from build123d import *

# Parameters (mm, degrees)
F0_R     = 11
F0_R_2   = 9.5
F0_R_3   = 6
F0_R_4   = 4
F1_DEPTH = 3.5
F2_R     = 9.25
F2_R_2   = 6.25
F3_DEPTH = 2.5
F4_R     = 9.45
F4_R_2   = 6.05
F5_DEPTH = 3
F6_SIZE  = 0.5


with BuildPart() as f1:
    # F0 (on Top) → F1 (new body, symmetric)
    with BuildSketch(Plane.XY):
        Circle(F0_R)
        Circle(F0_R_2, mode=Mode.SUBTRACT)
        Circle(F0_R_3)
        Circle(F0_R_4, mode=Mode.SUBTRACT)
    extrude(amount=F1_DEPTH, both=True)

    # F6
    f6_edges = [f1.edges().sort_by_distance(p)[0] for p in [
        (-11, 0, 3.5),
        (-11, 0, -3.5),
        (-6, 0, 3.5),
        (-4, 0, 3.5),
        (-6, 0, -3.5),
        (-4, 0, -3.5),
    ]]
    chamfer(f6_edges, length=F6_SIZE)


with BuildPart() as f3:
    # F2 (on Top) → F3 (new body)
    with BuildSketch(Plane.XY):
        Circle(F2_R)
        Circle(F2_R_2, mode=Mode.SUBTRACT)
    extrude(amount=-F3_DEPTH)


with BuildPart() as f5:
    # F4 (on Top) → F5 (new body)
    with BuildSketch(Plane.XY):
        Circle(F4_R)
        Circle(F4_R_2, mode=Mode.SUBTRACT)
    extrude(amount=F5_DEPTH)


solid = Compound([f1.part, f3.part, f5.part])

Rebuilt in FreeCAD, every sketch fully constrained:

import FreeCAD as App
import Part
import Sketcher

V = App.Vector
Q = App.Units.Quantity


def edges_at(feature, points):
    """Names of the edges that pass closest to the given points."""
    edges = feature.Shape.Edges
    near = lambda p: min(range(len(edges)), key=lambda i: edges[i].distToShape(Part.Vertex(*p))[0])
    return sorted({f"Edge{near(p) + 1}" for p in points})

doc = App.newDocument("Part")
body = doc.addObject("PartDesign::Body", "Body")
body.AllowCompound = True

sketch1 = body.newObject("Sketcher::SketchObject", "Sketch")
sketch1.AttachmentSupport = (doc.getObject("XY_Plane"), [""])
sketch1.MapMode = "FlatFace"
sketch1.addGeometry(Part.Circle(V(0, 0, 0), V(0, 0, 1), 11), False)
sketch1.addGeometry(Part.Circle(V(0, 0, 0), V(0, 0, 1), 9.5), False)
sketch1.addGeometry(Part.Circle(V(0, 0, 0), V(0, 0, 1), 6), False)
sketch1.addGeometry(Part.Circle(V(0, 0, 0), V(0, 0, 1), 4), False)
sketch1.addConstraint(Sketcher.Constraint("Coincident", 0, 3, -1, 1))
sketch1.addConstraint(Sketcher.Constraint("Coincident", 1, 3, -1, 1))
sketch1.addConstraint(Sketcher.Constraint("Coincident", 2, 3, -1, 1))
sketch1.addConstraint(Sketcher.Constraint("Coincident", 3, 3, -1, 1))
sketch1.addConstraint(Sketcher.Constraint("Diameter", 0, Q("22 mm")))
sketch1.addConstraint(Sketcher.Constraint("Diameter", 1, Q("19 mm")))
sketch1.addConstraint(Sketcher.Constraint("Diameter", 2, Q("12 mm")))
sketch1.addConstraint(Sketcher.Constraint("Diameter", 3, Q("8 mm")))
pad1 = body.newObject("PartDesign::Pad", "Pad")
pad1.Profile = sketch1
pad1.Length = 7
pad1.Midplane = True
doc.recompute()

chamfer = body.newObject("PartDesign::Chamfer", "Chamfer")
chamfer.Base = (pad1, edges_at(pad1, [
    (-11, 0, 3.5),
    (-11, 0, -3.5),
    (-6, 0, 3.5),
    (-4, 0, 3.5),
    (-6, 0, -3.5),
    (-4, 0, -3.5),
]))
chamfer.Size = 0.5
body2 = doc.addObject("PartDesign::Body", "Body001")

sketch2 = body2.newObject("Sketcher::SketchObject", "Sketch001")
sketch2.AttachmentSupport = (doc.getObject("XY_Plane001"), [""])
sketch2.MapMode = "FlatFace"
sketch2.addGeometry(Part.Circle(V(0, 0, 0), V(0, 0, 1), 9), False)
sketch2.addGeometry(Part.Circle(V(0, 0, 0), V(0, 0, 1), 6), False)
sketch2.addConstraint(Sketcher.Constraint("Coincident", 0, 3, -1, 1))
sketch2.addConstraint(Sketcher.Constraint("Coincident", 1, 3, -1, 1))
sketch2.addConstraint(Sketcher.Constraint("Diameter", 0, Q("18.5 mm")))
sketch2.addConstraint(Sketcher.Constraint("Diameter", 1, Q("12.5 mm")))
pad2 = body2.newObject("PartDesign::Pad", "Pad001")
pad2.Profile = sketch2
pad2.Length = 2.5
pad2.Reversed = True
body3 = doc.addObject("PartDesign::Body", "Body002")

sketch3 = body3.newObject("Sketcher::SketchObject", "Sketch002")
sketch3.AttachmentSupport = (doc.getObject("XY_Plane002"), [""])
sketch3.MapMode = "FlatFace"
sketch3.addGeometry(Part.Circle(V(0, 0, 0), V(0, 0, 1), 9), False)
sketch3.addGeometry(Part.Circle(V(0, 0, 0), V(0, 0, 1), 6), False)
sketch3.addConstraint(Sketcher.Constraint("Coincident", 0, 3, -1, 1))
sketch3.addConstraint(Sketcher.Constraint("Coincident", 1, 3, -1, 1))
sketch3.addConstraint(Sketcher.Constraint("Diameter", 0, Q("18.9 mm")))
sketch3.addConstraint(Sketcher.Constraint("Diameter", 1, Q("12.1 mm")))
pad3 = body3.newObject("PartDesign::Pad", "Pad002")
pad3.Profile = sketch3
pad3.Length = 3

doc.recompute()
